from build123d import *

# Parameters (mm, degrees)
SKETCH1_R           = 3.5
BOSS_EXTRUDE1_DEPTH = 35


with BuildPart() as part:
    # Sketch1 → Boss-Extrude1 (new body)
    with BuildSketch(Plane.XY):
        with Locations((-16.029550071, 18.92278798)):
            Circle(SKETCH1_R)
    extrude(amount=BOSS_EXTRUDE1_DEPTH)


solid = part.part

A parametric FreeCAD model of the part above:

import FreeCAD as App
import Part
import Sketcher
Q = App.Units.Quantity

doc = App.newDocument("Part")
body = doc.addObject("PartDesign::Body", "Body")

sketch1 = body.newObject("Sketcher::SketchObject", "Sketch")
sketch1.AttachmentSupport = (doc.getObject("XY_Plane"), [""])
sketch1.MapMode = "FlatFace"
sketch1.addGeometry(Part.Circle(App.Vector(-16, 18.9, 0), App.Vector(0, 0, 1), 3.5), False)
sketch1.addConstraint(Sketcher.Constraint("Diameter", 0, Q("7 mm")))
sketch1.addConstraint(Sketcher.Constraint("DistanceX", 0, 3, -1, 1, Q("16.02955 mm")))
sketch1.addConstraint(Sketcher.Constraint("DistanceY", -1, 1, 0, 3, Q("18.922788 mm")))
pad1 = body.newObject("PartDesign::Pad", "Pad")
pad1.Profile = sketch1
pad1.Length = 35

doc.recompute()
